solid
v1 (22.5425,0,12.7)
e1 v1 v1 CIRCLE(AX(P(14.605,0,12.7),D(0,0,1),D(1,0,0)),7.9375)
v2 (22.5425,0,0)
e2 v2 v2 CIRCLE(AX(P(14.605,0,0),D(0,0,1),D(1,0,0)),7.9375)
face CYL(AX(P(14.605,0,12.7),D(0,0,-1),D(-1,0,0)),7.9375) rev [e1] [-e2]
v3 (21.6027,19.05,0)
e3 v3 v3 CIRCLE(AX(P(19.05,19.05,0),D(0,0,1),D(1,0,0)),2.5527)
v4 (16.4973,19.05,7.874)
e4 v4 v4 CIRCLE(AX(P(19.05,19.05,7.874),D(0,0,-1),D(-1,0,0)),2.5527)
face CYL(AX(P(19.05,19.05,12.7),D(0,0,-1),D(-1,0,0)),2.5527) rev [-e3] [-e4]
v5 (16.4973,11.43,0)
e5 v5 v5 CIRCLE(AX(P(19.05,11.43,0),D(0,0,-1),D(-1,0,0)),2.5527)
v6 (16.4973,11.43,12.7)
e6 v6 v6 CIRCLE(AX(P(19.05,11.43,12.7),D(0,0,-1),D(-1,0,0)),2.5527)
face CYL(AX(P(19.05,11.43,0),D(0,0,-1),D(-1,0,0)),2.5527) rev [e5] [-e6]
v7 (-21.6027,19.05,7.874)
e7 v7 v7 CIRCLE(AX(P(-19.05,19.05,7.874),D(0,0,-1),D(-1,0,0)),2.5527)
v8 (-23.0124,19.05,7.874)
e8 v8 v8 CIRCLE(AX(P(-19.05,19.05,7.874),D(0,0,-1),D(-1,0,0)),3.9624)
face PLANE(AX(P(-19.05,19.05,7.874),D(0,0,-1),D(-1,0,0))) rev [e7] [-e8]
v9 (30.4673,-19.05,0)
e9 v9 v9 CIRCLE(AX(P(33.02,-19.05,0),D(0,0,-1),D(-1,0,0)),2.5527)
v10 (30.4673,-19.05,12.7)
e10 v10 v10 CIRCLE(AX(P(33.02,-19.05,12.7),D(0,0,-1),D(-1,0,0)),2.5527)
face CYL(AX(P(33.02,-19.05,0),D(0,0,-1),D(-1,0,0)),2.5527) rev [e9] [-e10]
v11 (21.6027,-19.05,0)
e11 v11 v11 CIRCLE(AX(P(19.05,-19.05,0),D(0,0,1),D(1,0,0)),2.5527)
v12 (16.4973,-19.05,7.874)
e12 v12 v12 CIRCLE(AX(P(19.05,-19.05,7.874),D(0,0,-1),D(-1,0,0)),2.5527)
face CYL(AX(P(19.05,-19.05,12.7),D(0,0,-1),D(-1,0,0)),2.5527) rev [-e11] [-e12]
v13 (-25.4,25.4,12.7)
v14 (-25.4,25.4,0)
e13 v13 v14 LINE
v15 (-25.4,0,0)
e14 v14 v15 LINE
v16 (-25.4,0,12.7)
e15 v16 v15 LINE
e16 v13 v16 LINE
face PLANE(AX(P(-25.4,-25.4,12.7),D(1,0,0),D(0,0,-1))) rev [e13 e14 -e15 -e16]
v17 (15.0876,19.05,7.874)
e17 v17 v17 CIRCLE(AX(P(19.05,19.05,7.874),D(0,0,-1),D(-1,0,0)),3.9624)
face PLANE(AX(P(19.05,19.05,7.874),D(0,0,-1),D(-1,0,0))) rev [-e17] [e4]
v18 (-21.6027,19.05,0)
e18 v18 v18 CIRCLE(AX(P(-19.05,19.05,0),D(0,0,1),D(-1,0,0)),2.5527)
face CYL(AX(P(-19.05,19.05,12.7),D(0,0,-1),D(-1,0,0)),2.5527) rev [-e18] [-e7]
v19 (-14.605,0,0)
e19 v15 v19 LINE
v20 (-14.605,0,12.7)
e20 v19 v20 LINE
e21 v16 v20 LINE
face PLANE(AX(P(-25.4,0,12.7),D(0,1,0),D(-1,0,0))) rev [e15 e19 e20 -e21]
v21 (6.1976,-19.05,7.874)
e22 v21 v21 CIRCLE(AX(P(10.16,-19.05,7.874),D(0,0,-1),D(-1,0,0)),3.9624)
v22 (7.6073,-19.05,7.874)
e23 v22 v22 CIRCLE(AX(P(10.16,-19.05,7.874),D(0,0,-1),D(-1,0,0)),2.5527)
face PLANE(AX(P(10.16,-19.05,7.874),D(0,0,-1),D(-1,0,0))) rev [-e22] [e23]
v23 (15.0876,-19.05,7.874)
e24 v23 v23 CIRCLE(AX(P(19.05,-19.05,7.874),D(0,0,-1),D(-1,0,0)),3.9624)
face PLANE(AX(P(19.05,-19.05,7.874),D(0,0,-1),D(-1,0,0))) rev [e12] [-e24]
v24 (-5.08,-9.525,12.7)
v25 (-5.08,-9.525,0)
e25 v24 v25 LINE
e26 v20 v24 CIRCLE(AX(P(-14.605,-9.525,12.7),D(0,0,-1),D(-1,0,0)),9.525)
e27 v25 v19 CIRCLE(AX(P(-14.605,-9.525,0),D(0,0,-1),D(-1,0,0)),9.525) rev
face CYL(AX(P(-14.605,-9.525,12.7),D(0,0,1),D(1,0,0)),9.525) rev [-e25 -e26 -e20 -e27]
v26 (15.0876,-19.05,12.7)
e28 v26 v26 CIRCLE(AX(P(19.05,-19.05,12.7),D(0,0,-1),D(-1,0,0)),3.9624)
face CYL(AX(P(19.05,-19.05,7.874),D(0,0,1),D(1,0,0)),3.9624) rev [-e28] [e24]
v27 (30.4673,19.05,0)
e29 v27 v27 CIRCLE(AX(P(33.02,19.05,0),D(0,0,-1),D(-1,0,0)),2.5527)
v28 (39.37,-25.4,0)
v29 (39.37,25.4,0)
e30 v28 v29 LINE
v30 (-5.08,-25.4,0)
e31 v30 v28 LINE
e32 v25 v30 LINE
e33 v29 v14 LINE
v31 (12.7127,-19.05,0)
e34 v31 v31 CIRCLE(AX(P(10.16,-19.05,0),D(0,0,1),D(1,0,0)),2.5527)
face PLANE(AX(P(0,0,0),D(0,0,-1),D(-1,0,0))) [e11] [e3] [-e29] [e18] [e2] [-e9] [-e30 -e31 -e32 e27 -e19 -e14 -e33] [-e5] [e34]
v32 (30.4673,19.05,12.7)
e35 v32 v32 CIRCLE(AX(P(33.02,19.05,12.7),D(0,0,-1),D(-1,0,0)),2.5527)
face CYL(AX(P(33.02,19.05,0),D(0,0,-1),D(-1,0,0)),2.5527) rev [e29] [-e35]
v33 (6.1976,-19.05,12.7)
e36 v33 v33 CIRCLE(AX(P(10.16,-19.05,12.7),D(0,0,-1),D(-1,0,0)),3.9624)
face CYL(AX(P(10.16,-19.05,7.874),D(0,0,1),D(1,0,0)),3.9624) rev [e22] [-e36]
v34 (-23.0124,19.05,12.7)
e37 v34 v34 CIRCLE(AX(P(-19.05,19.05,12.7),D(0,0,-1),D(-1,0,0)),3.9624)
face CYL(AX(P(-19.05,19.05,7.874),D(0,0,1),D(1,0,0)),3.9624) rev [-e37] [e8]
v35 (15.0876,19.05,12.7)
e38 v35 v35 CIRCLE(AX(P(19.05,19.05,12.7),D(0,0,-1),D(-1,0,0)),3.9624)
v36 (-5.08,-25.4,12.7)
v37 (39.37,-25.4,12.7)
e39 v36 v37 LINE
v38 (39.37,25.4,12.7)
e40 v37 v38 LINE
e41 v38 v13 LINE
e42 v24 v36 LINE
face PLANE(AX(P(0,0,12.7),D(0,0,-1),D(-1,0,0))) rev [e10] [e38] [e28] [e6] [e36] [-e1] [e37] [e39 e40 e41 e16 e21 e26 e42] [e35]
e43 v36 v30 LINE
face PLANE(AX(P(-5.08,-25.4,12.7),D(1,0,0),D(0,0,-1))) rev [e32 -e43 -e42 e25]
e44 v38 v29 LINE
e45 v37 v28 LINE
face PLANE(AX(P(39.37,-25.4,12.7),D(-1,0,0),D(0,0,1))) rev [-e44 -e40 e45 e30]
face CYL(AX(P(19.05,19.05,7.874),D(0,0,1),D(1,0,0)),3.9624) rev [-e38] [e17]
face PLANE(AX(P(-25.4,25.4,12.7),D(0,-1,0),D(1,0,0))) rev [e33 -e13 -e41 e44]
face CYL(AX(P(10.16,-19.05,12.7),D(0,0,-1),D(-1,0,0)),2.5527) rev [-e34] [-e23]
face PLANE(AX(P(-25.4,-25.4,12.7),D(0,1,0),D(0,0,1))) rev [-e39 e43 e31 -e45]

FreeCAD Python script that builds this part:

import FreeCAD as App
import Part
import Sketcher
from FreeCAD import Vector
Q = App.Units.Quantity


def edges_at(feature, points):
    """Names of the edges that pass closest to the given points."""
    edges = feature.Shape.Edges
    near = lambda p: min(range(len(edges)), key=lambda i: edges[i].distToShape(Part.Vertex(*p))[0])
    return sorted({f"Edge{near(p) + 1}" for p in points})

doc = App.newDocument("Part")
params = doc.addObject("Spreadsheet::Sheet", "Params")
for row, (alias, value) in enumerate([
    ("sketch1_height", "2 in"),
    ("sketch1_diameter", "0.201 in"),
    ("sketch1_diameter2", "0.625 in"),
    ("sketch1_width", "2.55 in"),
    ("pad1_length", "0.5 in"),
    ("sketch2_diameter", "0.201 in"),
    ("hole_diameter", "0.201 in"),
    ("hole_depth", "2.76 in"),
    ("sketch3_diameter", "0.312 in"),
    ("pocket1_length", "0.19 in"),
    ("sketch4_height", "1 in"),
    ("sketch4_width", "0.8 in"),
    ("fillet_radius", "0.375 in"),
], start=1):
    params.set(f"A{row}", alias)
    params.set(f"B{row}", "=" + value)
    params.setAlias(f"B{row}", alias)

body = doc.addObject("PartDesign::Body", "Body")

sketch1 = body.newObject("Sketcher::SketchObject", "Sketch")
sketch1.AttachmentSupport = (doc.getObject("XY_Plane"), [""])
sketch1.MapMode = "FlatFace"
sketch1.addGeometry([
    Part.LineSegment(Vector(-25.4, 25.4, 0), Vector(-25.4, -25.4, 0)),
    Part.LineSegment(Vector(-25.4, -25.4, 0), Vector(39.4, -25.4, 0)),
    Part.LineSegment(Vector(39.4, -25.4, 0), Vector(39.4, 25.4, 0)),
    Part.LineSegment(Vector(39.4, 25.4, 0), Vector(-25.4, 25.4, 0)),
    Part.Circle(Vector(10.2, -19.1, 0), Vector(0, 0, 1), 2.6),
    Part.Circle(Vector(19.1, -19.1, 0), Vector(0, 0, 1), 2.6),
    Part.Circle(Vector(-19.1, 19.1, 0), Vector(0, 0, 1), 2.6),
    Part.Circle(Vector(14.6, 0, 0), Vector(0, 0, 1), 7.9),
    Part.Circle(Vector(19.1, 19.1, 0), Vector(0, 0, 1), 2.6),
], False)
sketch1.addConstraint([
    Sketcher.Constraint("Coincident", 0, 2, 1, 1),
    Sketcher.Constraint("Coincident", 1, 2, 2, 1),
    Sketcher.Constraint("Coincident", 2, 2, 3, 1),
    Sketcher.Constraint("Coincident", 3, 2, 0, 1),
    Sketcher.Constraint("Vertical", 0),
    Sketcher.Constraint("Horizontal", 1),
    Sketcher.Constraint("Vertical", 2),
    Sketcher.Constraint("Horizontal", 3),
    Sketcher.Constraint("Equal", 4, 5),
    Sketcher.Constraint("Equal", 5, 6),
    Sketcher.Constraint("Equal", 6, 8),
    Sketcher.Constraint("Symmetric", 5, 3, 6, 3, -1, 1),
    Sketcher.Constraint("Symmetric", 6, 3, 8, 3, -2),
    Sketcher.Constraint("PointOnObject", 7, 3, -1),
    Sketcher.Constraint("Horizontal", 4, 3, 5, 3),
    Sketcher.Constraint("DistanceY", 0, 2, 0, 1, Q("2 in")),
    Sketcher.Constraint("Diameter", 4, Q("0.201 in")),
    Sketcher.Constraint("Diameter", 7, Q("0.625 in")),
    Sketcher.Constraint("DistanceX", 0, 2, -1, 1, Q("1 in")),
    Sketcher.Constraint("DistanceY", 0, 2, -1, 1, Q("1 in")),
    Sketcher.Constraint("DistanceX", 1, 1, 1, 2, Q("2.55 in")),
    Sketcher.Constraint("DistanceX", -1, 1, 4, 3, Q("0.4 in")),
    Sketcher.Constraint("DistanceY", 4, 3, 6, 3, Q("1.5 in")),
    Sketcher.Constraint("DistanceX", 6, 3, 5, 3, Q("1.5 in")),
    Sketcher.Constraint("DistanceX", -1, 1, 7, 3, Q("0.575 in")),
])
sketch1.setExpression("Constraints[15]", "Params.sketch1_height")
sketch1.setExpression("Constraints[16]", "Params.sketch1_diameter")
sketch1.setExpression("Constraints[17]", "Params.sketch1_diameter2")
sketch1.setExpression("Constraints[20]", "Params.sketch1_width")
pad1 = body.newObject("PartDesign::Pad", "Pad")
pad1.Profile = sketch1
pad1.setExpression("Length", "Params.pad1_length")

sketch2 = body.newObject("Sketcher::SketchObject", "Sketch001")
sketch2.AttachmentSupport = (doc.getObject("XY_Plane"), [""])
sketch2.MapMode = "FlatFace"
sketch2.addGeometry([
    Part.Circle(Vector(33, -19.1, 0), Vector(0, 0, 1), 2.6),
    Part.Circle(Vector(33, 19.1, 0), Vector(0, 0, 1), 2.6),
    Part.Circle(Vector(19.1, 11.4, 0), Vector(0, 0, 1), 2.6),
], False)
sketch2.addConstraint([
    Sketcher.Constraint("Equal", 0, 1),
    Sketcher.Constraint("Equal", 1, 2),
    Sketcher.Constraint("Symmetric", 0, 3, 1, 3, -1),
    Sketcher.Constraint("Diameter", 0, Q("0.201 in")),
    Sketcher.Constraint("DistanceX", -1, 1, 0, 3, Q("1.3 in")),
    Sketcher.Constraint("DistanceY", 0, 3, 1, 3, Q("1.5 in")),
    Sketcher.Constraint("DistanceY", 2, 3, 1, 3, Q("0.3 in")),
    Sketcher.Constraint("DistanceX", -1, 1, 2, 3, Q("0.75 in")),
])
sketch2.setExpression("Constraints[3]", "Params.sketch2_diameter")
doc.recompute()
hole = body.newObject("PartDesign::Hole", "Hole")
hole.Profile = sketch2
hole.ThreadType = "None"
hole.setExpression("Diameter", "Params.hole_diameter")
hole.DepthType = "Dimension"
hole.setExpression("Depth", "Params.hole_depth")
hole.DrillPoint = "Angled"
hole.DrillPointAngle = 118
hole.Reversed = True

sketch3 = body.newObject("Sketcher::SketchObject", "Sketch002")
sketch3.AttachmentSupport = (doc.getObject("XY_Plane"), [""])
sketch3.MapMode = "FlatFace"
sketch3.AttachmentOffset = App.Placement(Vector(0, 0, 0.5 * 25.4), App.Rotation())
sketch3.addGeometry([
    Part.Circle(Vector(19.1, 19.1, 0), Vector(0, 0, 1), 4),
    Part.Circle(Vector(19.1, -19.1, 0), Vector(0, 0, 1), 4),
    Part.Circle(Vector(10.2, -19.1, 0), Vector(0, 0, 1), 4),
    Part.Circle(Vector(-19.1, 19.1, 0), Vector(0, 0, 1), 4),
], False)
sketch3.addConstraint([
    Sketcher.Constraint("Equal", 0, 1),
    Sketcher.Constraint("Equal", 1, 2),
    Sketcher.Constraint("Equal", 2, 3),
    Sketcher.Constraint("Symmetric", 1, 3, 3, 3, -1, 1),
    Sketcher.Constraint("Symmetric", 0, 3, 3, 3, -2),
    Sketcher.Constraint("Horizontal", 1, 3, 2, 3),
    Sketcher.Constraint("Diameter", 0, Q("0.312 in")),
    Sketcher.Constraint("DistanceX", -1, 1, 2, 3, Q("0.4 in")),
    Sketcher.Constraint("DistanceY", 1, 3, 0, 3, Q("1.5 in")),
    Sketcher.Constraint("DistanceX", 3, 3, 0, 3, Q("1.5 in")),
])
sketch3.setExpression("Constraints[6]", "Params.sketch3_diameter")
pocket1 = body.newObject("PartDesign::Pocket", "Pocket")
pocket1.Profile = sketch3
pocket1.setExpression("Length", "Params.pocket1_length")

sketch4 = body.newObject("Sketcher::SketchObject", "Sketch003")
sketch4.AttachmentSupport = (doc.getObject("XY_Plane"), [""])
sketch4.MapMode = "FlatFace"
sketch4.addGeometry([
    Part.LineSegment(Vector(-5, 0, 0), Vector(-5, -25, 0)),
    Part.LineSegment(Vector(-5, -25, 0), Vector(-25, -25, 0)),
    Part.LineSegment(Vector(-25, -25, 0), Vector(-25, 0, 0)),
    Part.LineSegment(Vector(-25, 0, 0), Vector(-5, 0, 0)),
], False)
sketch4.addConstraint([
    Sketcher.Constraint("Coincident", 0, 2, 1, 1),
    Sketcher.Constraint("Coincident", 1, 2, 2, 1),
    Sketcher.Constraint("Coincident", 2, 2, 3, 1),
    Sketcher.Constraint("Coincident", 3, 2, 0, 1),
    Sketcher.Constraint("Vertical", 0),
    Sketcher.Constraint("Horizontal", 1),
    Sketcher.Constraint("Vertical", 2),
    Sketcher.Constraint("Horizontal", 3),
    Sketcher.Constraint("PointOnObject", 2, 2, -1),
    Sketcher.Constraint("DistanceY", 0, 2, 0, 1, Q("1 in")),
    Sketcher.Constraint("DistanceX", 1, 2, 1, 1, Q("0.8 in")),
    Sketcher.Constraint("DistanceX", 1, 2, -1, 1, Q("1 in")),
])
sketch4.setExpression("Constraints[9]", "Params.sketch4_height")
sketch4.setExpression("Constraints[10]", "Params.sketch4_width")
pocket2 = body.newObject("PartDesign::Pocket", "Pocket001")
pocket2.Profile = sketch4
pocket2.Type = "ThroughAll"
pocket2.Reversed = True
doc.recompute()

fillet = body.newObject("PartDesign::Fillet", "Fillet")
fillet.Base = (pocket2, edges_at(pocket2, [(-5.08, 0, 6.35)]))
fillet.setExpression("Radius", "Params.fillet_radius")

doc.recompute()
